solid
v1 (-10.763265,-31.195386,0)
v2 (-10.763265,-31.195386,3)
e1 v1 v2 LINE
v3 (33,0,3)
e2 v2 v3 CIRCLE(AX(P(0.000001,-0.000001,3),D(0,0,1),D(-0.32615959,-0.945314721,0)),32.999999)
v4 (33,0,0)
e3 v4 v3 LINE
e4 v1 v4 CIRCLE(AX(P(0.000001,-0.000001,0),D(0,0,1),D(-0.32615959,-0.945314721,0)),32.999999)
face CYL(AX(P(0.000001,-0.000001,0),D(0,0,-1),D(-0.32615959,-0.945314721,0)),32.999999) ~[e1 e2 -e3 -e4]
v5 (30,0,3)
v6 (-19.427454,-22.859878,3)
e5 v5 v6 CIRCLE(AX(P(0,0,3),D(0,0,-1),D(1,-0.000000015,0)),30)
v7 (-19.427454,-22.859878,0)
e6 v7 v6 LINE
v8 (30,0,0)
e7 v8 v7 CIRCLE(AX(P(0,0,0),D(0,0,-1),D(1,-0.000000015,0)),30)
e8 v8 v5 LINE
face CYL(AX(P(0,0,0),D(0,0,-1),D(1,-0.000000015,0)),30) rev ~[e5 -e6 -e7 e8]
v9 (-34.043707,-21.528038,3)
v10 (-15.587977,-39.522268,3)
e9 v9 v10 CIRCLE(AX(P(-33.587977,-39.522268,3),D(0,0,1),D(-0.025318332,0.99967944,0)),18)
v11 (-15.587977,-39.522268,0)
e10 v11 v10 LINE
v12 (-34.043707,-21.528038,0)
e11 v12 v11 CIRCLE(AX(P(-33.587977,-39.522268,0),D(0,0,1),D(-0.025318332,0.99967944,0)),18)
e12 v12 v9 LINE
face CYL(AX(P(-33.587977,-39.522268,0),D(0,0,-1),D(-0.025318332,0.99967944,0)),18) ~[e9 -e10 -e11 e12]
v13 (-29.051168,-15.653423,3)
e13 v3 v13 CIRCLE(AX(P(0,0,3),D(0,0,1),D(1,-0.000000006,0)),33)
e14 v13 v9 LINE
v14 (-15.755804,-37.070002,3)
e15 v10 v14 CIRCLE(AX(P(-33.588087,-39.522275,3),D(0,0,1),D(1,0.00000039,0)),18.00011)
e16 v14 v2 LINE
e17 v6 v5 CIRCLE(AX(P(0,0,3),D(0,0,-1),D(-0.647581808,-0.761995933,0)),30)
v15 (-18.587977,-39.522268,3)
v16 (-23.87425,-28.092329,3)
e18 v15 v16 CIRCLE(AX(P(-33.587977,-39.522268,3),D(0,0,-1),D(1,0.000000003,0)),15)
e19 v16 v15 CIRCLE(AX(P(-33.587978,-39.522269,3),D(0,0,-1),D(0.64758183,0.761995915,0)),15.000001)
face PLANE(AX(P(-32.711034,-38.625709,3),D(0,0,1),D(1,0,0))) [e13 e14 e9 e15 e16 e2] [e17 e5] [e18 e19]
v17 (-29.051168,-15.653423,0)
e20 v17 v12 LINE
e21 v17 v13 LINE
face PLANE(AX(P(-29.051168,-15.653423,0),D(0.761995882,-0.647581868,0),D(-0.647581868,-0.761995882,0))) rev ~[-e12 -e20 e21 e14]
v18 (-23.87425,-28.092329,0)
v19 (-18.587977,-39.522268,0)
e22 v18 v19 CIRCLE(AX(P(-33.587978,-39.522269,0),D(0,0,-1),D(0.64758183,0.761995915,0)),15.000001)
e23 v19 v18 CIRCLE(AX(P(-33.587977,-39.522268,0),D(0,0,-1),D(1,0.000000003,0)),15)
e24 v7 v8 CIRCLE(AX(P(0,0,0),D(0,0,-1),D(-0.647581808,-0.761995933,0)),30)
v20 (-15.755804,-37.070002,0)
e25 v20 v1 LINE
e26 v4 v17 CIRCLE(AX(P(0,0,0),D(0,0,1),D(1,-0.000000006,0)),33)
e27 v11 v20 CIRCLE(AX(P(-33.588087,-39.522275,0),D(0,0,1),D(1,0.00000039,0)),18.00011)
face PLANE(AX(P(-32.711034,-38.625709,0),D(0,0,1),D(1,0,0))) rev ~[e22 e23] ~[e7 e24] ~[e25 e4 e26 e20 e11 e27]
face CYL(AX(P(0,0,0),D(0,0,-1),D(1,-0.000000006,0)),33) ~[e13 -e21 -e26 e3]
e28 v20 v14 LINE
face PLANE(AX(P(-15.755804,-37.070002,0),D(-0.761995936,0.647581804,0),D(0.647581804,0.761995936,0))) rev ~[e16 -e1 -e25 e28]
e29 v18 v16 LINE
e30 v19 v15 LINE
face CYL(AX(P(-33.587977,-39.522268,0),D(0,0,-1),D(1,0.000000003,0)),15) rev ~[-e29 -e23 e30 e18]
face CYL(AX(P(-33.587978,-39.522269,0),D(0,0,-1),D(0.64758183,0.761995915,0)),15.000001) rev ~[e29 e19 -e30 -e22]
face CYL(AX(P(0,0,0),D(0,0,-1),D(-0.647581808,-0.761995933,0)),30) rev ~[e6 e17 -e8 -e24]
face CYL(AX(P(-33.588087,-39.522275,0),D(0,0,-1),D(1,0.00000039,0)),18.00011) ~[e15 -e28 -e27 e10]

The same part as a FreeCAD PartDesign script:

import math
import FreeCAD as App
import Part
import Sketcher

doc = App.newDocument("Part")
body = doc.addObject("PartDesign::Body", "Body")

# Sketch on XY plane
sketch1 = body.newObject("Sketcher::SketchObject", "Sketch")
sketch1.AttachmentSupport = (doc.getObject("XY_Plane"), [""])
sketch1.MapMode = "FlatFace"
sketch1.addGeometry([
    Part.ArcOfCircle(Part.Circle(App.Vector(-33.6, -39.5, 0), App.Vector(0, 0, 1), 18), math.radians(0), math.radians(7.83)),  # 0
    Part.LineSegment(App.Vector(-15.8, -37.1, 0), App.Vector(-10.8, -31.2, 0)),  # 1
    Part.ArcOfCircle(Part.Circle(App.Vector(0, 0, 0), App.Vector(0, 0, 1), 33), math.radians(-109), math.radians(0)),  # 2
    Part.ArcOfCircle(Part.Circle(App.Vector(0, 0, 0), App.Vector(0, 0, 1), 33), math.radians(0), math.radians(208)),  # 3
    Part.LineSegment(App.Vector(-29.1, -15.7, 0), App.Vector(-34, -21.5, 0)),  # 4
    Part.ArcOfCircle(Part.Circle(App.Vector(-33.6, -39.5, 0), App.Vector(0, 0, 1), 18), math.radians(91), math.radians(360)),  # 5
    Part.ArcOfCircle(Part.Circle(App.Vector(-33.6, -39.5, 0), App.Vector(0, 0, 1), 15), math.radians(0), math.radians(50)),  # 6
    Part.ArcOfCircle(Part.Circle(App.Vector(-33.6, -39.5, 0), App.Vector(0, 0, 1), 15), math.radians(50), math.radians(360)),  # 7
    Part.ArcOfCircle(Part.Circle(App.Vector(0, 0, 0), App.Vector(0, 0, 1), 30), math.radians(0), math.radians(230)),  # 8
    Part.ArcOfCircle(Part.Circle(App.Vector(0, 0, 0), App.Vector(0, 0, 1), 30), math.radians(-130), math.radians(0)),  # 9
], False)
sketch1.addConstraint([
    Sketcher.Constraint("Coincident", 0, 2, 1, 1),
    Sketcher.Constraint("Coincident", 1, 2, 2, 1),
    Sketcher.Constraint("Tangent", 2, 2, 3, 1),
    Sketcher.Constraint("Coincident", 3, 2, 4, 1),
    Sketcher.Constraint("Coincident", 4, 2, 5, 1),
    Sketcher.Constraint("Tangent", 5, 2, 0, 1),
    Sketcher.Constraint("Tangent", 6, 1, 7, 2),
    Sketcher.Constraint("Coincident", 7, 1, 6, 2),
    Sketcher.Constraint("Tangent", 8, 1, 9, 2),
    Sketcher.Constraint("Coincident", 9, 1, 8, 2),
    Sketcher.Constraint("Coincident", 2, 3, -1, 1),
    Sketcher.Constraint("Coincident", 8, 3, -1, 1),
    Sketcher.Constraint("Coincident", 6, 3, 5, 3),
    Sketcher.Constraint("Equal", 2, 3),
    Sketcher.Constraint("PointOnObject", 2, 2, -1),
    Sketcher.Constraint("PointOnObject", 8, 1, -1),
    Sketcher.Constraint("Parallel", 1, 4),
    Sketcher.Constraint("Horizontal", 7, 3, 5, 2),
    Sketcher.Constraint("Horizontal", 5, 2, 6, 1),
    Sketcher.Constraint("Equal", 1, 4),
    Sketcher.Constraint("Radius", 2, 32.999999),
    Sketcher.Constraint("Radius", 5, 18.0),
    Sketcher.Constraint("Radius", 6, 15.000001),
    Sketcher.Constraint("Radius", 8, 30.0),
    Sketcher.Constraint("DistanceY", 0, 2, -1, 1, 37.070002),
    Sketcher.Constraint("Radius", 0, 18.00011),
    Sketcher.Constraint("Distance", 1, 7.709511),
    Sketcher.Constraint("DistanceX", 6, 3, -1, 1, 33.587978),
    Sketcher.Constraint("DistanceY", 6, 3, -1, 1, 39.522269),
    Sketcher.Constraint("DistanceX", 7, 1, -1, 1, 23.87425),
    Sketcher.Constraint("DistanceY", 7, 1, 9, 1, 5.232451),
])
pad1 = body.newObject("PartDesign::Pad", "Pad")
pad1.Profile = sketch1
pad1.Length = 3

doc.recompute()
